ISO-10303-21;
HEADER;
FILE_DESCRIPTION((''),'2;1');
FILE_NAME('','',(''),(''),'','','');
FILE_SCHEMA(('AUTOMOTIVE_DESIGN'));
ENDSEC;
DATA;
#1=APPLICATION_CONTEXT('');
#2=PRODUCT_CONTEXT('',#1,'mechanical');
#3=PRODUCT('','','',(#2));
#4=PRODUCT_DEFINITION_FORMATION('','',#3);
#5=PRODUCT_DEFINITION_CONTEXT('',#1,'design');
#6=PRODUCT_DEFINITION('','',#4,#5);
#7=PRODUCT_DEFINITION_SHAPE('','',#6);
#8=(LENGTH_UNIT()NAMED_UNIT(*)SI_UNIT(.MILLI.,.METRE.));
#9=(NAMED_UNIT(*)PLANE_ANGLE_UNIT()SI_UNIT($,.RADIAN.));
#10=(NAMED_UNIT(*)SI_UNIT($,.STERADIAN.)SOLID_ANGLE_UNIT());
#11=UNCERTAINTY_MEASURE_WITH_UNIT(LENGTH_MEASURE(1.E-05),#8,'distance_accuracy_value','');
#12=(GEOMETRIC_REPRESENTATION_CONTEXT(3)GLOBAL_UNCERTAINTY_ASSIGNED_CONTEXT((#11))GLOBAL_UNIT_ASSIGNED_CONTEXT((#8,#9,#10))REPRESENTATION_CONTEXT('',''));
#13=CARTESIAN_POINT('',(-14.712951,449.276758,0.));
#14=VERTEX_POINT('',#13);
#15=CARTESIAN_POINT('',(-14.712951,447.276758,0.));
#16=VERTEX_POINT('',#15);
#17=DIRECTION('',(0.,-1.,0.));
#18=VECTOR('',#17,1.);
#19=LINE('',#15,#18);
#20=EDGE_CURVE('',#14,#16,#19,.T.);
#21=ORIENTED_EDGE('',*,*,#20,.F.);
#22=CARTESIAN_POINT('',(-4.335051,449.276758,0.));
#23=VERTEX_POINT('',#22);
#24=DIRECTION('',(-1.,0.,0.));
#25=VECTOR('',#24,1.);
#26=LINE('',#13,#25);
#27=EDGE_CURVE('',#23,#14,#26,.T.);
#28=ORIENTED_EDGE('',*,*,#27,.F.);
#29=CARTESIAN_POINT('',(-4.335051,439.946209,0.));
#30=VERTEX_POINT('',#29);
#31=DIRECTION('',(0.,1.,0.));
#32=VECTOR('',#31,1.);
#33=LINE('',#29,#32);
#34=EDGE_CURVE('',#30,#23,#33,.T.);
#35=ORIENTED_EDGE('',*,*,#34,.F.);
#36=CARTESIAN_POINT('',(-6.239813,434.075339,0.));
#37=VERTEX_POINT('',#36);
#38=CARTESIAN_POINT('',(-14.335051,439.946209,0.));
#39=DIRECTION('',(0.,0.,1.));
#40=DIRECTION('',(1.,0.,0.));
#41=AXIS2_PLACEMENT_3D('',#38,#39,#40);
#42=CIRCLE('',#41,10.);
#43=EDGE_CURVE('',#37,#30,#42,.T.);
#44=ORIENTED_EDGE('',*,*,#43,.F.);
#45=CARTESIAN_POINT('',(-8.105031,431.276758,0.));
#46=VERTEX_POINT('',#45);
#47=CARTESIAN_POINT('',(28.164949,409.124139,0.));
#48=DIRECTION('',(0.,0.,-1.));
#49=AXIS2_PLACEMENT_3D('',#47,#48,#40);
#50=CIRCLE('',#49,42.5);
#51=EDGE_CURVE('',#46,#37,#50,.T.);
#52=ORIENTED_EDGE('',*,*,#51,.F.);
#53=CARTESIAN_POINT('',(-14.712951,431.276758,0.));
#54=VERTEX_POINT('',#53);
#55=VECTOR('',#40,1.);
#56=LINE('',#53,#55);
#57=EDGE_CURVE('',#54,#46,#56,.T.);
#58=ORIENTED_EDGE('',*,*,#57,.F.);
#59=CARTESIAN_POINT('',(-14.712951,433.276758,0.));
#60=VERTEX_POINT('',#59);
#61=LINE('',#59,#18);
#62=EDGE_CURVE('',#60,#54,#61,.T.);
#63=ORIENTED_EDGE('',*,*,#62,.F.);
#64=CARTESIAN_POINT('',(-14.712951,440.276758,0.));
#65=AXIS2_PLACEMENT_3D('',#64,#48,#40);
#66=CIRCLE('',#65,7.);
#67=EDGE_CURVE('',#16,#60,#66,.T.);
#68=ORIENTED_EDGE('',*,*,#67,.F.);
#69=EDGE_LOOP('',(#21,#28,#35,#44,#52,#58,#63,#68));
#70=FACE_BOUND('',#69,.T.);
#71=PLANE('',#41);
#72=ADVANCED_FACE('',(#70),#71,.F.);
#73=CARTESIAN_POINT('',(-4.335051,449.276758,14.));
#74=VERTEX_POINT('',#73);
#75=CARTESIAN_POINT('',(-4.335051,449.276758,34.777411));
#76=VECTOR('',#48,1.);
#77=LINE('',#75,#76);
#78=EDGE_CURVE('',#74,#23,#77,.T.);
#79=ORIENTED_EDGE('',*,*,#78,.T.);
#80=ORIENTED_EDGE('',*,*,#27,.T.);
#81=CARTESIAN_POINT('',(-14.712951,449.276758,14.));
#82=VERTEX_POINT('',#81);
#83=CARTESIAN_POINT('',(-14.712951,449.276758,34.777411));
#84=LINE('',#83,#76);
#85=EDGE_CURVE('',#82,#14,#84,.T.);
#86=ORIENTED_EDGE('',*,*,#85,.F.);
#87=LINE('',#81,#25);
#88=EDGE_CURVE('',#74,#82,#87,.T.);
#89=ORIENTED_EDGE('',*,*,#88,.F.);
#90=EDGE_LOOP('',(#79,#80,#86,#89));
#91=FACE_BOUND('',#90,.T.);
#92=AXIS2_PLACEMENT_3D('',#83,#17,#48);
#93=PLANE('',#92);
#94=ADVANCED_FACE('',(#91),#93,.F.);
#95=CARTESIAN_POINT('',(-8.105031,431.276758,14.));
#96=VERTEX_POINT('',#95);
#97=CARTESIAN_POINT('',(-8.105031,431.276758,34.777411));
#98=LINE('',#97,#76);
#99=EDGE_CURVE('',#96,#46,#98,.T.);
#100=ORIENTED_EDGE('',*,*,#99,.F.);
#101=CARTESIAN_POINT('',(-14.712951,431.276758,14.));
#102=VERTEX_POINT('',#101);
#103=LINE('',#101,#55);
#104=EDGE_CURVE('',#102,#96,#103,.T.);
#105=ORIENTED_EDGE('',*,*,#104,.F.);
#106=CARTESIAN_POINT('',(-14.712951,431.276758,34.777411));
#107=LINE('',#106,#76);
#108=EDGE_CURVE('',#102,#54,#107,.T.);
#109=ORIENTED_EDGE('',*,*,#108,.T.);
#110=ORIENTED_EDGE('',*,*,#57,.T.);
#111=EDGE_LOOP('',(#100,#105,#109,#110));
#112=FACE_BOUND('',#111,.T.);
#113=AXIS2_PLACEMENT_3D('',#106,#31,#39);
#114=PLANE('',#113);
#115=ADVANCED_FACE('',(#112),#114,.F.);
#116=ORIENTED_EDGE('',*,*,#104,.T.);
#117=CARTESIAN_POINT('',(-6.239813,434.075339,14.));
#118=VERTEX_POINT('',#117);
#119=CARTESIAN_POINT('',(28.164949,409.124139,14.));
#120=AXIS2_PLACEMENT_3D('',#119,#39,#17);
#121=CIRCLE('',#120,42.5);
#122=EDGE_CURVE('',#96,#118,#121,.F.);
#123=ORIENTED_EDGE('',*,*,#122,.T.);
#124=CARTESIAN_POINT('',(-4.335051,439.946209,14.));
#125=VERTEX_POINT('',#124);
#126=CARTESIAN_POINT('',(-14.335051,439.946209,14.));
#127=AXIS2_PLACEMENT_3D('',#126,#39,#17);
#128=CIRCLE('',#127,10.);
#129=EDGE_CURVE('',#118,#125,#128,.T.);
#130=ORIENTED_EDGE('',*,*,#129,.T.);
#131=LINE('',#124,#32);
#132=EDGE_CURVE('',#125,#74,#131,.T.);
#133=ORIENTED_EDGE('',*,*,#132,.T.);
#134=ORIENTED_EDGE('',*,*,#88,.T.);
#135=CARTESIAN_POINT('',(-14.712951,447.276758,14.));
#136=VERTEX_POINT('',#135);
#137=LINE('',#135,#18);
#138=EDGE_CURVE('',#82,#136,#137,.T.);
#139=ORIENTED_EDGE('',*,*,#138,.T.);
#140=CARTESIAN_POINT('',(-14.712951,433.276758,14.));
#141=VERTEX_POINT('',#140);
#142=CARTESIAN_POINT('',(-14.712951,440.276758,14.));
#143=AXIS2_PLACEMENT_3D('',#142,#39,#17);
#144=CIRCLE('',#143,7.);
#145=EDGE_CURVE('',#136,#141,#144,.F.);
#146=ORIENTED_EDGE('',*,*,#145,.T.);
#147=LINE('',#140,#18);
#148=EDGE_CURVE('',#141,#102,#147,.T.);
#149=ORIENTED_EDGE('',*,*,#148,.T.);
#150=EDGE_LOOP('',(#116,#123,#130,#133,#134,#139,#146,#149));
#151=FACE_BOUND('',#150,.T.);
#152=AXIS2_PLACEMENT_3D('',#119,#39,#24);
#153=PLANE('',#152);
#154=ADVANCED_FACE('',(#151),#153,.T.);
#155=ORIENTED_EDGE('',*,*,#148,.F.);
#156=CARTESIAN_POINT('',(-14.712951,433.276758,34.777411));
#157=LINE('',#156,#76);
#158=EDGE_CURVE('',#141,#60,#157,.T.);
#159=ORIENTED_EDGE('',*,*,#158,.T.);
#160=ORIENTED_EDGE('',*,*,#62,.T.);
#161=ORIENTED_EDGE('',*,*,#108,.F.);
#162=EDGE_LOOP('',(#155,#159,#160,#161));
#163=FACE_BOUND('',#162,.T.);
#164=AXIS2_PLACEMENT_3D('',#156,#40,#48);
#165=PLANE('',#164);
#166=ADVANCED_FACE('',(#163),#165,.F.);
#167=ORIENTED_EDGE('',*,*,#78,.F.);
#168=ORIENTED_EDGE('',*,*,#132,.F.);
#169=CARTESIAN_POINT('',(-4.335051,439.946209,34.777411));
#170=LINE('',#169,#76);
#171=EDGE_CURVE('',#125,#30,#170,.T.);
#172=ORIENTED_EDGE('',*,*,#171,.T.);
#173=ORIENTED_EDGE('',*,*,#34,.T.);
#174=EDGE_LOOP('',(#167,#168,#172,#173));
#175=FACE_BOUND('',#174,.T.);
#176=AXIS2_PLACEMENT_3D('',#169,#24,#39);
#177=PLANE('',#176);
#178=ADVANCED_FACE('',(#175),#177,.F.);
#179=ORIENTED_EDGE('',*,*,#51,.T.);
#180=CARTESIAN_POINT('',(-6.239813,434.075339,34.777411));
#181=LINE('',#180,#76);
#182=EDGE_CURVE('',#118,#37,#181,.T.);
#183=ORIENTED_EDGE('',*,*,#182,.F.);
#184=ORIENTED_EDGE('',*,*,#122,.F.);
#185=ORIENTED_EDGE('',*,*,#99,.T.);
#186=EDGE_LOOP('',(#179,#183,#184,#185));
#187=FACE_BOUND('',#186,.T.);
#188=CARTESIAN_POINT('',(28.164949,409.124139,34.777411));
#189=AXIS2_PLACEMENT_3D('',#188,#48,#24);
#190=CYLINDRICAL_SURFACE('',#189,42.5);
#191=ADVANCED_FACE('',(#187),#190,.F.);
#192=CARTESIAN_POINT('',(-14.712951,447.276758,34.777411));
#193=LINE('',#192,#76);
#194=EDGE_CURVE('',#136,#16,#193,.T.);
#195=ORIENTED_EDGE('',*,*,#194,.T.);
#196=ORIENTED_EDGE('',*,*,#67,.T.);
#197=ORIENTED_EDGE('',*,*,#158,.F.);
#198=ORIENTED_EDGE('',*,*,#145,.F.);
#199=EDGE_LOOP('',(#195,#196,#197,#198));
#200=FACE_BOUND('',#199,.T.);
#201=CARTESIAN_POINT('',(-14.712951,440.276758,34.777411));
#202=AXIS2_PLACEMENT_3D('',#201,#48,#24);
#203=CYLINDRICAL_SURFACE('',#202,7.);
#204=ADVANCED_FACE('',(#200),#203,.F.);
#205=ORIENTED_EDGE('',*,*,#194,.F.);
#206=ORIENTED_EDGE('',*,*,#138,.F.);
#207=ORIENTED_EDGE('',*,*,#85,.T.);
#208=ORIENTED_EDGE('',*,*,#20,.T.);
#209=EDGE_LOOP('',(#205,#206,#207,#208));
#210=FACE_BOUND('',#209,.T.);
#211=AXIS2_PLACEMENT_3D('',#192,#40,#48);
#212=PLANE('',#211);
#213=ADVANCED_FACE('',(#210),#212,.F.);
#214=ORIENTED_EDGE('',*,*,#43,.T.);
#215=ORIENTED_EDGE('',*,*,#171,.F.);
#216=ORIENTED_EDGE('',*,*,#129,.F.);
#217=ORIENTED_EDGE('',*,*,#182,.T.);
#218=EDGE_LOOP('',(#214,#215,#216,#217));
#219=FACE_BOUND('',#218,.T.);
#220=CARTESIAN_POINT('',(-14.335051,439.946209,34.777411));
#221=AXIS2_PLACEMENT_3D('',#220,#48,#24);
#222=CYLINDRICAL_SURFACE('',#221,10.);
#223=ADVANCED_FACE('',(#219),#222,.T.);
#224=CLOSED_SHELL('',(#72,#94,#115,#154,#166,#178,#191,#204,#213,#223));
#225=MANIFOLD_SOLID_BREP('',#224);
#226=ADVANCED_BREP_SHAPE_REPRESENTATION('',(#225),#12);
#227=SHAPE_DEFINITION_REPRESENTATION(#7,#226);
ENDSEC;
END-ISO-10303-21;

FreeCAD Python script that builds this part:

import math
import FreeCAD as App
import Part
import Sketcher
Q = App.Units.Quantity

doc = App.newDocument("Part")
params = doc.addObject("Spreadsheet::Sheet", "Params")
for row, (alias, value) in enumerate([
    ("sketch1_radius", "7 mm"),
    ("sketch1_radius2", "10 mm"),
    ("sketch1_radius3", "42.499999 mm"),
    ("sketch1_height", "2 mm"),
    ("pad1_length", "14 mm"),
], start=1):
    params.set(f"A{row}", alias)
    params.set(f"B{row}", "=" + value)
    params.setAlias(f"B{row}", alias)

body = doc.addObject("PartDesign::Body", "Body")

# Sketch on XY plane
sketch1 = doc.addObject("Sketcher::SketchObject", "Sketch")
body.addObject(sketch1)
sketch1.AttachmentSupport = (doc.XY_Plane, [""])
sketch1.MapMode = "FlatFace"
sketch1.addGeometry([
    Part.LineSegment(App.Vector(-4.3, 439.9, 0), App.Vector(-4.3, 449.3, 0)),  # 0
    Part.LineSegment(App.Vector(-4.3, 449.3, 0), App.Vector(-14.7, 449.3, 0)),  # 1
    Part.LineSegment(App.Vector(-14.7, 449.3, 0), App.Vector(-14.7, 447.3, 0)),  # 2
    Part.ArcOfCircle(Part.Circle(App.Vector(-14.7, 440.3, 0), App.Vector(0, 0, 1), 7), math.radians(-90), math.radians(90)),  # 3
    Part.LineSegment(App.Vector(-14.7, 433.3, 0), App.Vector(-14.7, 431.3, 0)),  # 4
    Part.LineSegment(App.Vector(-14.7, 431.3, 0), App.Vector(-8.1, 431.3, 0)),  # 5
    Part.ArcOfCircle(Part.Circle(App.Vector(28.2, 409.1, 0), App.Vector(0, 0, 1), 42.5), math.radians(144.05), math.radians(148.58)),  # 6
    Part.ArcOfCircle(Part.Circle(App.Vector(-14.3, 439.9, 0), App.Vector(0, 0, 1), 10), math.radians(-36), math.radians(0)),  # 7
], False)
sketch1.addConstraint([
    Sketcher.Constraint("Coincident", 0, 2, 1, 1),
    Sketcher.Constraint("Coincident", 1, 2, 2, 1),
    Sketcher.Constraint("Coincident", 2, 2, 3, 2),
    Sketcher.Constraint("Coincident", 3, 1, 4, 1),
    Sketcher.Constraint("Coincident", 4, 2, 5, 1),
    Sketcher.Constraint("Coincident", 5, 2, 6, 2),
    Sketcher.Constraint("Tangent", 6, 1, 7, 1),
    Sketcher.Constraint("Tangent", 7, 2, 0, 1),
    Sketcher.Constraint("Vertical", 0),
    Sketcher.Constraint("Horizontal", 1),
    Sketcher.Constraint("Vertical", 2),
    Sketcher.Constraint("Vertical", 4),
    Sketcher.Constraint("Horizontal", 5),
    Sketcher.Constraint("Vertical", 3, 3, 1, 2),
    Sketcher.Constraint("Vertical", 2, 2, 3, 1),
    Sketcher.Constraint("Equal", 2, 4),
    Sketcher.Constraint("Radius", 3, Q("7 mm")),
    Sketcher.Constraint("Radius", 7, Q("10 mm")),
    Sketcher.Constraint("Radius", 6, Q("42.499999 mm")),
    Sketcher.Constraint("DistanceY", 2, 2, 2, 1, Q("2 mm")),
    Sketcher.Constraint("DistanceX", 7, 3, 6, 3, Q("42.499999 mm")),
    Sketcher.Constraint("DistanceX", 1, 2, 1, 1, Q("10.377901 mm")),
    Sketcher.Constraint("DistanceX", 5, 1, 5, 2, Q("6.60792 mm")),
    Sketcher.Constraint("DistanceX", 3, 3, -1, 1, Q("14.712951 mm")),
    Sketcher.Constraint("DistanceY", -1, 1, 6, 3, Q("409.12414 mm")),
])
sketch1.setExpression("Constraints[16]", "Params.sketch1_radius")
sketch1.setExpression("Constraints[17]", "Params.sketch1_radius2")
sketch1.setExpression("Constraints[18]", "Params.sketch1_radius3")
sketch1.setExpression("Constraints[19]", "Params.sketch1_height")
pad1 = doc.addObject("PartDesign::Pad", "Pad")
body.addObject(pad1)
pad1.Profile = sketch1
pad1.setExpression("Length", "Params.pad1_length")

doc.recompute()
